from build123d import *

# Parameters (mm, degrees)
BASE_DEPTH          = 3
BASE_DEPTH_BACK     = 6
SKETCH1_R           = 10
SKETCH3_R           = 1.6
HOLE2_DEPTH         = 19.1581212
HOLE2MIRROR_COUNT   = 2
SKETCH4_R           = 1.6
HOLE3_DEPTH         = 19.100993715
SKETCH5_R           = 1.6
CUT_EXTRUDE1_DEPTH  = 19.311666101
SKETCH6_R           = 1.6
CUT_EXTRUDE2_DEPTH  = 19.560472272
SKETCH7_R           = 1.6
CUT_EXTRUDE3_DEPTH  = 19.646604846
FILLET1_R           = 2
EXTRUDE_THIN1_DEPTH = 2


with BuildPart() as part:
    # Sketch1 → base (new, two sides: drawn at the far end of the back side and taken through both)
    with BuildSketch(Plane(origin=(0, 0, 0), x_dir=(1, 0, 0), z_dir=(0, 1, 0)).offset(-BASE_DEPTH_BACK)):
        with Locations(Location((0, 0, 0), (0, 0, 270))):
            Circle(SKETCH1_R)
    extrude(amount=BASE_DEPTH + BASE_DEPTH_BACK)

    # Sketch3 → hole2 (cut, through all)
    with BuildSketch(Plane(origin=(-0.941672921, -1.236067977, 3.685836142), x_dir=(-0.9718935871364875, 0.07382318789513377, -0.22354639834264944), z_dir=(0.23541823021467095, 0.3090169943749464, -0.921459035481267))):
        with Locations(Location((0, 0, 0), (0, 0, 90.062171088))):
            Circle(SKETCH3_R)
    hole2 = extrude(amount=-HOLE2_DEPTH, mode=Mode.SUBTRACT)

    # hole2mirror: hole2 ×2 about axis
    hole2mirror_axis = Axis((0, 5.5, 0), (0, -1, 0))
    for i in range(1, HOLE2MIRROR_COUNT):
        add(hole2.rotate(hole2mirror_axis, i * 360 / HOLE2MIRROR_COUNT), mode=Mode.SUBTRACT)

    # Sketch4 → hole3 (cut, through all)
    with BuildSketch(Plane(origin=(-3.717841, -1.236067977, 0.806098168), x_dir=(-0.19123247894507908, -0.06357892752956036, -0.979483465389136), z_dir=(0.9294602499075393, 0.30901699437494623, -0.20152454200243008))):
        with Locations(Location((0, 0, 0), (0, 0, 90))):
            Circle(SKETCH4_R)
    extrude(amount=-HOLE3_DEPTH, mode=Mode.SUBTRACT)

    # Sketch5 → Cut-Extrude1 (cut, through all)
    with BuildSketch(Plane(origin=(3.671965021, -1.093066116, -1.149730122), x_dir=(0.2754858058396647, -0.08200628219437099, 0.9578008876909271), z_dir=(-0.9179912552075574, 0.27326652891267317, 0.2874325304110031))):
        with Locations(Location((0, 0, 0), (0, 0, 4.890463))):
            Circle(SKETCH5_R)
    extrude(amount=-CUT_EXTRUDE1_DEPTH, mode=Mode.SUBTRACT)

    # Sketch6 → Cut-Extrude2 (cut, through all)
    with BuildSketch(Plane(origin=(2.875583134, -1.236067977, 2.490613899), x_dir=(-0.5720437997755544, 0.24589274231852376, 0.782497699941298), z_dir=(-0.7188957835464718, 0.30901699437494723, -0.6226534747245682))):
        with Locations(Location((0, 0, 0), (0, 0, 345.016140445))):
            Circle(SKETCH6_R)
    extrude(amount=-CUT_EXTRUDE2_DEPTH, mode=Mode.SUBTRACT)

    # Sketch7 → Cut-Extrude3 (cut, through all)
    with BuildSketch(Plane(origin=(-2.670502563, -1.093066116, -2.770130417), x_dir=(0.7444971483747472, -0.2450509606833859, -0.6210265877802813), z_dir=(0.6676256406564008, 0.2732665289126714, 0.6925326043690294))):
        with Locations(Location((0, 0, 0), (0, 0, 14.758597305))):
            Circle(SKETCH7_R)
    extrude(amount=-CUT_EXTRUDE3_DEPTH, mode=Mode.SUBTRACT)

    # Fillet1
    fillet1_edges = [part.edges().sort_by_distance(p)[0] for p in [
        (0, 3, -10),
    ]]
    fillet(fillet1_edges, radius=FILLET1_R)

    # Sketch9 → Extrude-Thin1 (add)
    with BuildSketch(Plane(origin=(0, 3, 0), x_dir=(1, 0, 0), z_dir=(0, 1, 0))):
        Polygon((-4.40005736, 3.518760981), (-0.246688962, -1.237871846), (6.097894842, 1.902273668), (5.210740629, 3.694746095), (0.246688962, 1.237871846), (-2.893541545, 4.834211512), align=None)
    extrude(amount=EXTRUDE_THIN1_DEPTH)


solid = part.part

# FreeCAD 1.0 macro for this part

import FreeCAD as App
import Part
import Sketcher

V = App.Vector


def edges_at(feature, points):
    """Names of the edges that pass closest to the given points."""
    edges = feature.Shape.Edges
    near = lambda p: min(range(len(edges)), key=lambda i: edges[i].distToShape(Part.Vertex(*p))[0])
    return sorted({f"Edge{near(p) + 1}" for p in points})

doc = App.newDocument("Part")
params = doc.addObject("Spreadsheet::Sheet", "Params")
for row, (alias, value) in enumerate([
    ("sketch1_diameter", "20 mm"),
    ("pad1_length", "3 mm"),
    ("pad1_length2", "6 mm"),
    ("sketch2_diameter", "3.2 mm"),
    ("sketch3_diameter", "3.2 mm"),
    ("sketch4_diameter", "3.2 mm"),
    ("sketch5_diameter", "3.2 mm"),
    ("sketch6_diameter", "3.2 mm"),
    ("fillet_radius", "2 mm"),
    ("sketch7_length", "2 mm"),
    ("pad2_length", "2 mm"),
], start=1):
    params.set(f"A{row}", alias)
    params.set(f"B{row}", "=" + value)
    params.setAlias(f"B{row}", alias)

body = doc.addObject("PartDesign::Body", "Body")

sketch1 = doc.addObject("Sketcher::SketchObject", "Sketch")
body.addObject(sketch1)
sketch1.AttachmentSupport = (doc.XZ_Plane, [""])
sketch1.MapMode = "FlatFace"
sketch1.addGeometry(Part.Circle(V(0, 0, 0), V(0, 0, 1), 10), False)
sketch1.addConstraint([
    Sketcher.Constraint("Coincident", 0, 3, -1, 1),
    Sketcher.Constraint("Diameter", 0, 20.0),
])
sketch1.setExpression("Constraints[1]", "Params.sketch1_diameter")
pad1 = doc.addObject("PartDesign::Pad", "Pad")
body.addObject(pad1)
pad1.Profile = sketch1
pad1.Type = "TwoLengths"
pad1.setExpression("Length", "Params.pad1_length")
pad1.setExpression("Length2", "Params.pad1_length2")
pad1.Reversed = True

sketch2 = doc.addObject("Sketcher::SketchObject", "Sketch001")
body.addObject(sketch2)
sketch2.Placement = App.Placement(V(-0.941673, -1.236068, 3.685836), App.Rotation(V(-0.971893587, 0.073823188, -0.223546398), V(-0.001054592, 0.948187024, 0.317710959), V(0.23541823, 0.309016994, -0.921459035), "ZXY"))
sketch2.addGeometry(Part.Circle(V(0, 0, 0), V(0, 0, 1), 1.6), False)
sketch2.addConstraint([
    Sketcher.Constraint("Coincident", 0, 3, -1, 1),
    Sketcher.Constraint("Diameter", 0, 3.2),
])
sketch2.setExpression("Constraints[1]", "Params.sketch2_diameter")
pocket1 = doc.addObject("PartDesign::Pocket", "Pocket")
body.addObject(pocket1)
pocket1.Profile = sketch2
pocket1.Type = "ThroughAll"
doc.recompute()

polarpattern = doc.addObject("PartDesign::PolarPattern", "PolarPattern")
body.addObject(polarpattern)
polarpattern.Originals = [pocket1]
polarpattern.Axis = (doc.Y_Axis, [""])
polarpattern.Angle = 360
polarpattern.Occurrences = 2
body.Tip = polarpattern

sketch3 = doc.addObject("Sketcher::SketchObject", "Sketch002")
body.addObject(sketch3)
sketch3.Placement = App.Placement(V(-3.717841, -1.236068, 0.806098), App.Rotation(V(-0.191232479, -0.063578928, -0.979483465), V(-0.31548975, 0.948928984, 0), V(0.92946025, 0.309016994, -0.201524542), "ZXY"))
sketch3.addGeometry(Part.Circle(V(0, 0, 0), V(0, 0, 1), 1.6), False)
sketch3.addConstraint([
    Sketcher.Constraint("Coincident", 0, 3, -1, 1),
    Sketcher.Constraint("Diameter", 0, 3.2),
])
sketch3.setExpression("Constraints[1]", "Params.sketch3_diameter")
pocket2 = doc.addObject("PartDesign::Pocket", "Pocket001")
body.addObject(pocket2)
pocket2.Profile = sketch3
pocket2.Type = "ThroughAll"

sketch4 = doc.addObject("Sketcher::SketchObject", "Sketch003")
body.addObject(sketch4)
sketch4.Placement = App.Placement(V(3.671965, -1.093066, -1.14973), App.Rotation(V(0.275485806, -0.082006282, 0.957800888), V(0.285306197, 0.958436421, 0), V(-0.917991255, 0.273266529, 0.28743253), "ZXY"))
sketch4.addGeometry(Part.Circle(V(0, 0, 0), V(0, 0, 1), 1.6), False)
sketch4.addConstraint([
    Sketcher.Constraint("Coincident", 0, 3, -1, 1),
    Sketcher.Constraint("Diameter", 0, 3.2),
])
sketch4.setExpression("Constraints[1]", "Params.sketch4_diameter")
pocket3 = doc.addObject("PartDesign::Pocket", "Pocket002")
body.addObject(pocket3)
pocket3.Profile = sketch4
pocket3.Type = "ThroughAll"

sketch5 = doc.addObject("Sketcher::SketchObject", "Sketch004")
body.addObject(sketch5)
sketch5.Placement = App.Placement(V(2.875583, -1.236068, 2.490614), App.Rotation(V(-0.5720438, 0.245892742, 0.7824977), V(0.394911057, 0.918719357, 0), V(-0.718895784, 0.309016994, -0.622653475), "ZXY"))
sketch5.addGeometry(Part.Circle(V(0, 0, 0), V(0, 0, 1), 1.6), False)
sketch5.addConstraint([
    Sketcher.Constraint("Coincident", 0, 3, -1, 1),
    Sketcher.Constraint("Diameter", 0, 3.2),
])
sketch5.setExpression("Constraints[1]", "Params.sketch5_diameter")
pocket4 = doc.addObject("PartDesign::Pocket", "Pocket003")
body.addObject(pocket4)
pocket4.Profile = sketch5
pocket4.Type = "ThroughAll"

sketch6 = doc.addObject("Sketcher::SketchObject", "Sketch005")
body.addObject(sketch6)
sketch6.Placement = App.Placement(V(-2.670503, -1.093066, -2.77013), App.Rotation(V(0.744497148, -0.245050961, -0.621026588), V(0, 0.930201822, -0.367048456), V(0.667625641, 0.273266529, 0.692532604), "ZXY"))
sketch6.addGeometry(Part.Circle(V(0, 0, 0), V(0, 0, 1), 1.6), False)
sketch6.addConstraint([
    Sketcher.Constraint("Coincident", 0, 3, -1, 1),
    Sketcher.Constraint("Diameter", 0, 3.2),
])
sketch6.setExpression("Constraints[1]", "Params.sketch6_diameter")
pocket5 = doc.addObject("PartDesign::Pocket", "Pocket004")
body.addObject(pocket5)
pocket5.Profile = sketch6
pocket5.Type = "ThroughAll"
doc.recompute()

fillet = doc.addObject("PartDesign::Fillet", "Fillet")
body.addObject(fillet)
fillet.Base = (pocket5, edges_at(pocket5, [(0, 3, -10)]))
fillet.setExpression("Radius", "Params.fillet_radius")

sketch7 = doc.addObject("Sketcher::SketchObject", "Sketch006")
body.addObject(sketch7)
sketch7.AttachmentSupport = (doc.XZ_Plane, [""])
sketch7.MapMode = "FlatFace"
sketch7.AttachmentOffset = App.Placement(V(0, 0, -3), App.Rotation())
sketch7.addGeometry([
    Part.LineSegment(V(-4.4, -3.5, 0), V(-0.2, 1.2, 0)),
    Part.LineSegment(V(-0.2, 1.2, 0), V(6.1, -1.9, 0)),
    Part.LineSegment(V(6.1, -1.9, 0), V(5.2, -3.7, 0)),
    Part.LineSegment(V(5.2, -3.7, 0), V(0.2, -1.2, 0)),
    Part.LineSegment(V(0.2, -1.2, 0), V(-2.9, -4.8, 0)),
    Part.LineSegment(V(-2.9, -4.8, 0), V(-4.4, -3.5, 0)),
], False)
sketch7.addConstraint([
    Sketcher.Constraint("Coincident", 0, 2, 1, 1),
    Sketcher.Constraint("Coincident", 1, 2, 2, 1),
    Sketcher.Constraint("Coincident", 2, 2, 3, 1),
    Sketcher.Constraint("Coincident", 3, 2, 4, 1),
    Sketcher.Constraint("Coincident", 4, 2, 5, 1),
    Sketcher.Constraint("Coincident", 5, 2, 0, 1),
    Sketcher.Constraint("Symmetric", 0, 2, 3, 2, -1, 1),
    Sketcher.Constraint("Perpendicular", 1, 2),
    Sketcher.Constraint("Perpendicular", 2, 3),
    Sketcher.Constraint("Parallel", 0, 4),
    Sketcher.Constraint("Perpendicular", 4, 5),
    Sketcher.Constraint("Equal", 2, 5),
    Sketcher.Constraint("Distance", 2, 2.0),
    Sketcher.Constraint("DistanceY", 1, 2, 3, 2, 0.664402),
    Sketcher.Constraint("Distance", 4, 4.77438),
    Sketcher.Constraint("DistanceX", 0, 2, -1, 1, 0.246689),
    Sketcher.Constraint("DistanceY", -1, 1, 0, 2, 1.237872),
])
sketch7.setExpression("Constraints[12]", "Params.sketch7_length")
pad2 = doc.addObject("PartDesign::Pad", "Pad001")
body.addObject(pad2)
pad2.Profile = sketch7
pad2.setExpression("Length", "Params.pad2_length")
pad2.Reversed = True

doc.recompute()
